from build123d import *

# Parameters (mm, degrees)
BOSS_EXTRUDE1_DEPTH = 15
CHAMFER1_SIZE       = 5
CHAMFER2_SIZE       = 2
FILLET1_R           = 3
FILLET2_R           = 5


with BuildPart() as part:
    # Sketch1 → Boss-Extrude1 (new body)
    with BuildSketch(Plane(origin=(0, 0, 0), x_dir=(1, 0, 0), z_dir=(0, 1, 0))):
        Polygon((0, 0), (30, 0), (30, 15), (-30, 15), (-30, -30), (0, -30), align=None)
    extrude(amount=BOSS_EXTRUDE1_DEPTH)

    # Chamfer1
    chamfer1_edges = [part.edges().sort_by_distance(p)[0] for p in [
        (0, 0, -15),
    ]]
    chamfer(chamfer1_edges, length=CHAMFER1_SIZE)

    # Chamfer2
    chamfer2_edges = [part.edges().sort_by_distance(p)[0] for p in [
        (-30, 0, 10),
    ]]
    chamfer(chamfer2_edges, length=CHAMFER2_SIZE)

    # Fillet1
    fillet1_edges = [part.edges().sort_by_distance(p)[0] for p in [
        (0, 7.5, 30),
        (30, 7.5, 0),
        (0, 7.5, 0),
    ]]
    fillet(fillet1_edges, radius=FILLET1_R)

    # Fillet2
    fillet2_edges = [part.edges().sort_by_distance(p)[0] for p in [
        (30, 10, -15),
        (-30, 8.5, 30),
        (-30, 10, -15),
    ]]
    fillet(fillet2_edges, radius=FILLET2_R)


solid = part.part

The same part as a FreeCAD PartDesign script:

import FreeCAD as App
import Part
import Sketcher


def edges_at(feature, points):
    """Names of the edges that pass closest to the given points."""
    edges = feature.Shape.Edges
    near = lambda p: min(range(len(edges)), key=lambda i: edges[i].distToShape(Part.Vertex(*p))[0])
    return sorted({f"Edge{near(p) + 1}" for p in points})


def add_polygon(sketch, points):
    """Adds a closed chain of lines whose ends are joined by coincident constraints."""
    first, n = sketch.GeometryCount, len(points)
    for a, b in zip(points, points[1:] + points[:1]):
        sketch.addGeometry(Part.LineSegment(App.Vector(*a, 0), App.Vector(*b, 0)), False)
    for i in range(n):
        sketch.addConstraint(Sketcher.Constraint("Coincident", first + i, 2, first + (i + 1) % n, 1))

doc = App.newDocument("Part")
body = doc.addObject("PartDesign::Body", "Body")

sketch1 = body.newObject("Sketcher::SketchObject", "Sketch")
sketch1.AttachmentSupport = (doc.getObject("XZ_Plane"), [""])
sketch1.MapMode = "FlatFace"
add_polygon(sketch1, [(0, 0), (30, 0), (30, -15), (-30, -15), (-30, 30), (0, 30)])
sketch1.addConstraint([
    Sketcher.Constraint("Horizontal", 0),
    Sketcher.Constraint("Vertical", 1),
    Sketcher.Constraint("Horizontal", 2),
    Sketcher.Constraint("Vertical", 3),
    Sketcher.Constraint("Horizontal", 4),
    Sketcher.Constraint("Vertical", 5),
    Sketcher.Constraint("Coincident", 5, 2, -1, 1),
    Sketcher.Constraint("Equal", 0, 4),
    Sketcher.Constraint("Equal", 4, 5),
    Sketcher.Constraint("DistanceX", 0, 1, 0, 2, 30.0),
    Sketcher.Constraint("DistanceY", 1, 2, 1, 1, 15.0),
])
pad1 = body.newObject("PartDesign::Pad", "Pad")
pad1.Profile = sketch1
pad1.Length = 15
pad1.Reversed = True
doc.recompute()

chamfer = body.newObject("PartDesign::Chamfer", "Chamfer")
chamfer.Base = (pad1, edges_at(pad1, [(0, 0, -15)]))
chamfer.Size = 5
doc.recompute()

chamfer2 = body.newObject("PartDesign::Chamfer", "Chamfer001")
chamfer2.Base = (chamfer, edges_at(chamfer, [(-30, 0, 10)]))
chamfer2.Size = 2
doc.recompute()

fillet = body.newObject("PartDesign::Fillet", "Fillet")
fillet.Base = (chamfer2, edges_at(chamfer2, [(0, 7.5, 30), (30, 7.5, 0), (0, 7.5, 0)]))
fillet.Radius = 3
doc.recompute()

fillet2 = body.newObject("PartDesign::Fillet", "Fillet001")
fillet2.Base = (fillet, edges_at(fillet, [(30, 10, -15), (-30, 8.5, 30), (-30, 10, -15)]))
fillet2.Radius = 5

doc.recompute()
